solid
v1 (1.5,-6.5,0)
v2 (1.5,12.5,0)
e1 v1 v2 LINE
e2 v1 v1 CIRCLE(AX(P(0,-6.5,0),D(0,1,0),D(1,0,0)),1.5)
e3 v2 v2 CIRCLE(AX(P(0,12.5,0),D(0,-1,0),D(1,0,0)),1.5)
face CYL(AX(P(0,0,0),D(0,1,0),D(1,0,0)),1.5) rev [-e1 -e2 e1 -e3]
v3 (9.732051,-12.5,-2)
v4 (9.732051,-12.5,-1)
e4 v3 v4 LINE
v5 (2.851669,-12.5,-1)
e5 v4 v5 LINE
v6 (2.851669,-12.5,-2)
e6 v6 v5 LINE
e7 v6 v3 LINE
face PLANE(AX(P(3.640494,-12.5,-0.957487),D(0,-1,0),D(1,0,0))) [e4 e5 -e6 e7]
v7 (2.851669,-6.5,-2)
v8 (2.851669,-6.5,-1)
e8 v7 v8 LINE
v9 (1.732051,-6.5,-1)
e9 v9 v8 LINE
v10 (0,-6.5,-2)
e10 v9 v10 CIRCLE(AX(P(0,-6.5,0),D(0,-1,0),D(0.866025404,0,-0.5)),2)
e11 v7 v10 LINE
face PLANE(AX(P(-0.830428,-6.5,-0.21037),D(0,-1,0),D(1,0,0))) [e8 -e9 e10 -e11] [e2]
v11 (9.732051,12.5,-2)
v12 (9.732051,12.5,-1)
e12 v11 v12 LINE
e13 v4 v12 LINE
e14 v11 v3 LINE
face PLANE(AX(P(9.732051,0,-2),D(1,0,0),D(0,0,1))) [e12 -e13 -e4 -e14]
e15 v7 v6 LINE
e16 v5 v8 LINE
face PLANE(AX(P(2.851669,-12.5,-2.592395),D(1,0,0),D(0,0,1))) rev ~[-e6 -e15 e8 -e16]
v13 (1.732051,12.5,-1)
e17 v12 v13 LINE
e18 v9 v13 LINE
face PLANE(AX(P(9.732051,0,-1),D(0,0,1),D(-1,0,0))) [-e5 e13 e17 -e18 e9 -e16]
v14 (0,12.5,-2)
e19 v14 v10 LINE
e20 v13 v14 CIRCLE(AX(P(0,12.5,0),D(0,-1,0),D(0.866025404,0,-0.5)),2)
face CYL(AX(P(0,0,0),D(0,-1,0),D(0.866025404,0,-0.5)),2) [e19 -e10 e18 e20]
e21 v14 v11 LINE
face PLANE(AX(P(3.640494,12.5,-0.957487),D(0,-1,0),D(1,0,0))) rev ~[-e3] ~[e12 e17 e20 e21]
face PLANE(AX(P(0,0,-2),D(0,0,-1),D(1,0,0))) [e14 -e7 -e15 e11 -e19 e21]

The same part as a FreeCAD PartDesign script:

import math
import FreeCAD as App
import Part
import Sketcher
from FreeCAD import Vector
Q = App.Units.Quantity


def add_polygon(sketch, points):
    """Adds a closed chain of lines whose ends are joined by coincident constraints."""
    first, n = sketch.GeometryCount, len(points)
    for a, b in zip(points, points[1:] + points[:1]):
        sketch.addGeometry(Part.LineSegment(App.Vector(*a, 0), App.Vector(*b, 0)), False)
    for i in range(n):
        sketch.addConstraint(Sketcher.Constraint("Coincident", first + i, 2, first + (i + 1) % n, 1))

doc = App.newDocument("Part")
body = doc.addObject("PartDesign::Body", "Body")

# Sketch on XZ plane
sketch1 = body.newObject("Sketcher::SketchObject", "Sketch")
sketch1.AttachmentSupport = (doc.getObject("XZ_Plane"), [""])
sketch1.MapMode = "FlatFace"
sketch1.addGeometry([
    Part.ArcOfCircle(Part.Circle(Vector(0, 0, 0), Vector(0, 0, 1), 2), math.radians(-30), math.radians(270)),  # 0
    Part.LineSegment(Vector(0, -2, 0), Vector(9.7, -2, 0)),  # 1
    Part.LineSegment(Vector(9.7, -2, 0), Vector(9.7, -1, 0)),  # 2
    Part.LineSegment(Vector(9.7, -1, 0), Vector(1.7, -1, 0)),  # 3
    Part.Circle(Vector(0, 0, 0), Vector(0, 0, 1), 1.5),  # 4
], False)
sketch1.addConstraint([
    Sketcher.Constraint("Tangent", 0, 2, 1, 1),
    Sketcher.Constraint("Coincident", 1, 2, 2, 1),
    Sketcher.Constraint("Coincident", 2, 2, 3, 1),
    Sketcher.Constraint("Coincident", 3, 2, 0, 1),
    Sketcher.Constraint("Horizontal", 1),
    Sketcher.Constraint("Vertical", 2),
    Sketcher.Constraint("Horizontal", 3),
    Sketcher.Constraint("Coincident", 0, 3, -1, 1),
    Sketcher.Constraint("Coincident", 4, 3, -1, 1),
    Sketcher.Constraint("Diameter", 4, Q("3 mm")),
    Sketcher.Constraint("Radius", 0, Q("2 mm")),
    Sketcher.Constraint("DistanceX", 3, 2, 3, 1, Q("8 mm")),
    Sketcher.Constraint("DistanceY", 2, 1, 2, 2, Q("1 mm")),
])
pad1 = body.newObject("PartDesign::Pad", "Pad")
pad1.Profile = sketch1
pad1.Length = 25
pad1.Midplane = True

# Sketch on XZ plane
sketch2 = body.newObject("Sketcher::SketchObject", "Sketch001")
sketch2.AttachmentSupport = (doc.getObject("XZ_Plane"), [""])
sketch2.MapMode = "FlatFace"
sketch2.AttachmentOffset = App.Placement(Vector(0, 0, 12.5), App.Rotation())
add_polygon(sketch2, [(2.9, 2.8), (-4.4, 2.8), (-4.4, -3.4), (1.7, -3.4), (2.9, -2.6)])  # lines 0-4
sketch2.addConstraint([
    Sketcher.Constraint("Horizontal", 0),
    Sketcher.Constraint("Vertical", 1),
    Sketcher.Constraint("Horizontal", 2),
    Sketcher.Constraint("Vertical", 4),
    Sketcher.Constraint("DistanceY", 4, 1, 4, 2, Q("5.406889 mm")),
    Sketcher.Constraint("Distance", 3, Q("1.368658 mm")),
    Sketcher.Constraint("DistanceX", 0, 2, 0, 1, Q("7.205914 mm")),
    Sketcher.Constraint("DistanceX", 2, 1, 2, 2, Q("6.086295 mm")),
    Sketcher.Constraint("DistanceX", -1, 1, 2, 2, Q("1.732051 mm")),
    Sketcher.Constraint("DistanceY", -1, 1, 0, 2, Q("2.814494 mm")),
])
pocket1 = body.newObject("PartDesign::Pocket", "Pocket")
pocket1.Profile = sketch2
pocket1.Length = 6

doc.recompute()
